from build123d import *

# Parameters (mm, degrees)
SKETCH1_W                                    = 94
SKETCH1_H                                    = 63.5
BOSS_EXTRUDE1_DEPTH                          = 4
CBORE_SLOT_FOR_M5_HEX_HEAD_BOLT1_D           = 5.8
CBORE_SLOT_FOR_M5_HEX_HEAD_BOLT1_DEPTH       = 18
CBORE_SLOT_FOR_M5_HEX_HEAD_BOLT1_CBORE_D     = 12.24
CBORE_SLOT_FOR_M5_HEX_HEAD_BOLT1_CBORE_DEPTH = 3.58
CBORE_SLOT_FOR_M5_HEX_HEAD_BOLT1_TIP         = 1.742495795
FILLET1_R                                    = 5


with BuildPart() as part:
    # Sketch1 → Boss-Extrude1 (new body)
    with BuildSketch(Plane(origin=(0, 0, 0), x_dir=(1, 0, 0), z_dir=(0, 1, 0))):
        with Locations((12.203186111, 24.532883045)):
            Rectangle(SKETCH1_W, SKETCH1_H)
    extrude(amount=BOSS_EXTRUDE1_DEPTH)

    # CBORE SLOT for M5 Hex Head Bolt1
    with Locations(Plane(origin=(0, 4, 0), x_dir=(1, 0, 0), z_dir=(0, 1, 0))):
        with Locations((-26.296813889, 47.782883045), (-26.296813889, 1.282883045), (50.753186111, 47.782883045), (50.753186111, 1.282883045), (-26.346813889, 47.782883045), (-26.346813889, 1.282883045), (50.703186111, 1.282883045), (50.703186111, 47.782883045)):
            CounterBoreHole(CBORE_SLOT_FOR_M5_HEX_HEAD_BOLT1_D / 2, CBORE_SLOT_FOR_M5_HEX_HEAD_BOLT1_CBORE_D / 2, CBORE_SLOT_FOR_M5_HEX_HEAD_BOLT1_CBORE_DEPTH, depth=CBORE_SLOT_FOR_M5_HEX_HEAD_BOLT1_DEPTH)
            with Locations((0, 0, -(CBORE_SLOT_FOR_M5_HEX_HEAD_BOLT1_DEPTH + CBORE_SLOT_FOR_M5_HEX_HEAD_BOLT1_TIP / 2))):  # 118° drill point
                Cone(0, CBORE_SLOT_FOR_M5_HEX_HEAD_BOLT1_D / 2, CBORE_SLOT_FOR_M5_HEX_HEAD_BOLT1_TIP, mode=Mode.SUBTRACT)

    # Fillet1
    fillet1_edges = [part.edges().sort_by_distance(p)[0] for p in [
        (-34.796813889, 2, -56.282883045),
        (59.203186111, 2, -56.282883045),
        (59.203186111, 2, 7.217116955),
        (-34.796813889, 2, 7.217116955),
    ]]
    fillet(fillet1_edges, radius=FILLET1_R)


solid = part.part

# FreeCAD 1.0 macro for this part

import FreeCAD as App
import Part
import Sketcher

V = App.Vector


def edges_at(feature, points):
    """Names of the edges that pass closest to the given points."""
    edges = feature.Shape.Edges
    near = lambda p: min(range(len(edges)), key=lambda i: edges[i].distToShape(Part.Vertex(*p))[0])
    return sorted({f"Edge{near(p) + 1}" for p in points})


def add_polygon(sketch, points):
    """Adds a closed chain of lines whose ends are joined by coincident constraints."""
    first, n = sketch.GeometryCount, len(points)
    for a, b in zip(points, points[1:] + points[:1]):
        sketch.addGeometry(Part.LineSegment(App.Vector(*a, 0), App.Vector(*b, 0)), False)
    for i in range(n):
        sketch.addConstraint(Sketcher.Constraint("Coincident", first + i, 2, first + (i + 1) % n, 1))

doc = App.newDocument("Part")
body = doc.addObject("PartDesign::Body", "Body")

sketch1 = body.newObject("Sketcher::SketchObject", "Sketch")
sketch1.AttachmentSupport = (doc.getObject("XZ_Plane"), [""])
sketch1.MapMode = "FlatFace"
add_polygon(sketch1, [(-35, -56), (-35, 7), (59, 7), (59, -56)])
sketch1.addConstraint([
    Sketcher.Constraint("Vertical", 0),
    Sketcher.Constraint("Horizontal", 1),
    Sketcher.Constraint("Vertical", 2),
    Sketcher.Constraint("Horizontal", 3),
    Sketcher.Constraint("DistanceX", 1, 1, 1, 2, 94.0),
    Sketcher.Constraint("DistanceY", 0, 1, 0, 2, 63.5),
    Sketcher.Constraint("DistanceX", 0, 2, -1, 1, 34.796814),
    Sketcher.Constraint("DistanceY", -1, 1, 0, 2, 7.217117),
])
pad1 = body.newObject("PartDesign::Pad", "Pad")
pad1.Profile = sketch1
pad1.Length = 4
pad1.Reversed = True

sketch2 = body.newObject("Sketcher::SketchObject", "Sketch001")
sketch2.AttachmentSupport = (doc.getObject("XZ_Plane"), [""])
sketch2.MapMode = "FlatFace"
sketch2.AttachmentOffset = App.Placement(V(0, 0, -4), App.Rotation())
sketch2.addGeometry([
    Part.Circle(V(-26.3, -47.8, 0), V(0, 0, 1), 2.9),
    Part.Circle(V(-26.3, -1.3, 0), V(0, 0, 1), 2.9),
    Part.Circle(V(50.8, -47.8, 0), V(0, 0, 1), 2.9),
    Part.Circle(V(50.8, -1.3, 0), V(0, 0, 1), 2.9),
    Part.Circle(V(-26.3, -47.8, 0), V(0, 0, 1), 2.9),
    Part.Circle(V(-26.3, -1.3, 0), V(0, 0, 1), 2.9),
    Part.Circle(V(50.7, -1.3, 0), V(0, 0, 1), 2.9),
    Part.Circle(V(50.7, -47.8, 0), V(0, 0, 1), 2.9),
], False)
sketch2.addConstraint([
    Sketcher.Constraint("Equal", 0, 1),
    Sketcher.Constraint("Equal", 1, 2),
    Sketcher.Constraint("Equal", 2, 3),
    Sketcher.Constraint("Equal", 3, 4),
    Sketcher.Constraint("Equal", 4, 5),
    Sketcher.Constraint("Equal", 5, 6),
    Sketcher.Constraint("Equal", 6, 7),
    Sketcher.Constraint("Horizontal", 0, 3, 2, 3),
    Sketcher.Constraint("Horizontal", 1, 3, 3, 3),
    Sketcher.Constraint("Horizontal", 2, 3, 4, 3),
    Sketcher.Constraint("Horizontal", 3, 3, 5, 3),
    Sketcher.Constraint("Horizontal", 5, 3, 6, 3),
    Sketcher.Constraint("Horizontal", 4, 3, 7, 3),
    Sketcher.Constraint("Vertical", 0, 3, 1, 3),
    Sketcher.Constraint("Vertical", 2, 3, 3, 3),
    Sketcher.Constraint("Vertical", 4, 3, 5, 3),
    Sketcher.Constraint("Vertical", 6, 3, 7, 3),
    Sketcher.Constraint("Diameter", 0, 5.8),
    Sketcher.Constraint("DistanceX", 1, 3, 6, 3, 77.0),
    Sketcher.Constraint("DistanceY", 0, 3, 1, 3, 46.5),
    Sketcher.Constraint("DistanceX", 4, 3, 2, 3, 77.1),
    Sketcher.Constraint("DistanceX", 0, 3, 2, 3, 77.05),
    Sketcher.Constraint("DistanceX", 0, 3, -1, 1, 26.296814),
    Sketcher.Constraint("DistanceY", 0, 3, -1, 1, 47.782883),
])
doc.recompute()
hole = body.newObject("PartDesign::Hole", "Hole")
hole.Profile = sketch2
hole.ThreadType = "None"
hole.Diameter = 5.8
hole.DepthType = "Dimension"
hole.Depth = 18
hole.DrillPoint = "Angled"
hole.DrillPointAngle = 118
hole.HoleCutType = "Counterbore"
hole.HoleCutDiameter = 12.24
hole.HoleCutDepth = 3.58
hole.Reversed = True
doc.recompute()

fillet = body.newObject("PartDesign::Fillet", "Fillet")
fillet.Base = (hole, edges_at(hole, [
    (-34.797, 2, -56.283),
    (59.203, 2, -56.283),
    (59.203, 2, 7.217),
    (-34.797, 2, 7.217),
]))
fillet.Radius = 5

doc.recompute()
